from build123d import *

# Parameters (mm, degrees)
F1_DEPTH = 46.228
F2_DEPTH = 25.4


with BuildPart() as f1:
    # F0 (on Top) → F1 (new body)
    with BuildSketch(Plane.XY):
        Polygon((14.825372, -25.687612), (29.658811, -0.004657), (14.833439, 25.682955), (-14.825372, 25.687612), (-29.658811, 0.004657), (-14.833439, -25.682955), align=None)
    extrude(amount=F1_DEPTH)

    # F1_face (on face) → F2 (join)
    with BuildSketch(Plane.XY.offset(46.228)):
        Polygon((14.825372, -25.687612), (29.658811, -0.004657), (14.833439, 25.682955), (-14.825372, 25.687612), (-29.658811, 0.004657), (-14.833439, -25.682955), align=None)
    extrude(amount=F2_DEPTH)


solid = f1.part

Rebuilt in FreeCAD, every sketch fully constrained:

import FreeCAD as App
import Part
import Sketcher

V = App.Vector
Q = App.Units.Quantity


def add_polygon(sketch, points):
    """Adds a closed chain of lines whose ends are joined by coincident constraints."""
    first, n = sketch.GeometryCount, len(points)
    for a, b in zip(points, points[1:] + points[:1]):
        sketch.addGeometry(Part.LineSegment(App.Vector(*a, 0), App.Vector(*b, 0)), False)
    for i in range(n):
        sketch.addConstraint(Sketcher.Constraint("Coincident", first + i, 2, first + (i + 1) % n, 1))

doc = App.newDocument("Part")
body = doc.addObject("PartDesign::Body", "Body")

sketch1 = body.newObject("Sketcher::SketchObject", "Sketch")
sketch1.AttachmentSupport = (doc.getObject("XY_Plane"), [""])
sketch1.MapMode = "FlatFace"
add_polygon(sketch1, [(15, -26), (30, 0), (15, 26), (-15, 26), (-30, 0), (-15, -26)])
sketch1.addConstraint(Sketcher.Constraint("Symmetric", 0, 2, 3, 2, -1, 1))
sketch1.addConstraint(Sketcher.Constraint("Symmetric", 1, 2, 4, 2, -1, 1))
sketch1.addConstraint(Sketcher.Constraint("Symmetric", 2, 2, 5, 2, -1, 1))
sketch1.addConstraint(Sketcher.Constraint("Equal", 0, 1))
sketch1.addConstraint(Sketcher.Constraint("Equal", 1, 2))
sketch1.addConstraint(Sketcher.Constraint("Distance", 0, Q("29.658811 mm")))
sketch1.addConstraint(Sketcher.Constraint("DistanceX", -1, 1, 0, 2, Q("29.658811 mm")))
sketch1.addConstraint(Sketcher.Constraint("DistanceX", -1, 1, 1, 2, Q("14.833439 mm")))
sketch1.addConstraint(Sketcher.Constraint("DistanceY", 0, 2, 2, 2, Q("25.692269 mm")))
pad1 = body.newObject("PartDesign::Pad", "Pad")
pad1.Profile = sketch1
pad1.Length = Q("1.82 in")

sketch2 = body.newObject("Sketcher::SketchObject", "Sketch001")
sketch2.AttachmentSupport = (doc.getObject("XY_Plane"), [""])
sketch2.MapMode = "FlatFace"
sketch2.AttachmentOffset = App.Placement(V(0, 0, 1.82 * 25.4), App.Rotation())
add_polygon(sketch2, [(15, -26), (30, 0), (15, 26), (-15, 26), (-30, 0), (-15, -26)])
sketch2.addConstraint(Sketcher.Constraint("Symmetric", 0, 2, 3, 2, -1, 1))
sketch2.addConstraint(Sketcher.Constraint("Symmetric", 1, 2, 4, 2, -1, 1))
sketch2.addConstraint(Sketcher.Constraint("Symmetric", 2, 2, 5, 2, -1, 1))
sketch2.addConstraint(Sketcher.Constraint("Equal", 0, 1))
sketch2.addConstraint(Sketcher.Constraint("Equal", 1, 2))
sketch2.addConstraint(Sketcher.Constraint("Distance", 0, Q("29.658811 mm")))
sketch2.addConstraint(Sketcher.Constraint("DistanceX", -1, 1, 0, 2, Q("29.658811 mm")))
sketch2.addConstraint(Sketcher.Constraint("DistanceX", -1, 1, 1, 2, Q("14.833439 mm")))
sketch2.addConstraint(Sketcher.Constraint("DistanceY", 0, 2, 2, 2, Q("25.692269 mm")))
pad2 = body.newObject("PartDesign::Pad", "Pad001")
pad2.Profile = sketch2
pad2.Length = Q("1 in")

doc.recompute()
